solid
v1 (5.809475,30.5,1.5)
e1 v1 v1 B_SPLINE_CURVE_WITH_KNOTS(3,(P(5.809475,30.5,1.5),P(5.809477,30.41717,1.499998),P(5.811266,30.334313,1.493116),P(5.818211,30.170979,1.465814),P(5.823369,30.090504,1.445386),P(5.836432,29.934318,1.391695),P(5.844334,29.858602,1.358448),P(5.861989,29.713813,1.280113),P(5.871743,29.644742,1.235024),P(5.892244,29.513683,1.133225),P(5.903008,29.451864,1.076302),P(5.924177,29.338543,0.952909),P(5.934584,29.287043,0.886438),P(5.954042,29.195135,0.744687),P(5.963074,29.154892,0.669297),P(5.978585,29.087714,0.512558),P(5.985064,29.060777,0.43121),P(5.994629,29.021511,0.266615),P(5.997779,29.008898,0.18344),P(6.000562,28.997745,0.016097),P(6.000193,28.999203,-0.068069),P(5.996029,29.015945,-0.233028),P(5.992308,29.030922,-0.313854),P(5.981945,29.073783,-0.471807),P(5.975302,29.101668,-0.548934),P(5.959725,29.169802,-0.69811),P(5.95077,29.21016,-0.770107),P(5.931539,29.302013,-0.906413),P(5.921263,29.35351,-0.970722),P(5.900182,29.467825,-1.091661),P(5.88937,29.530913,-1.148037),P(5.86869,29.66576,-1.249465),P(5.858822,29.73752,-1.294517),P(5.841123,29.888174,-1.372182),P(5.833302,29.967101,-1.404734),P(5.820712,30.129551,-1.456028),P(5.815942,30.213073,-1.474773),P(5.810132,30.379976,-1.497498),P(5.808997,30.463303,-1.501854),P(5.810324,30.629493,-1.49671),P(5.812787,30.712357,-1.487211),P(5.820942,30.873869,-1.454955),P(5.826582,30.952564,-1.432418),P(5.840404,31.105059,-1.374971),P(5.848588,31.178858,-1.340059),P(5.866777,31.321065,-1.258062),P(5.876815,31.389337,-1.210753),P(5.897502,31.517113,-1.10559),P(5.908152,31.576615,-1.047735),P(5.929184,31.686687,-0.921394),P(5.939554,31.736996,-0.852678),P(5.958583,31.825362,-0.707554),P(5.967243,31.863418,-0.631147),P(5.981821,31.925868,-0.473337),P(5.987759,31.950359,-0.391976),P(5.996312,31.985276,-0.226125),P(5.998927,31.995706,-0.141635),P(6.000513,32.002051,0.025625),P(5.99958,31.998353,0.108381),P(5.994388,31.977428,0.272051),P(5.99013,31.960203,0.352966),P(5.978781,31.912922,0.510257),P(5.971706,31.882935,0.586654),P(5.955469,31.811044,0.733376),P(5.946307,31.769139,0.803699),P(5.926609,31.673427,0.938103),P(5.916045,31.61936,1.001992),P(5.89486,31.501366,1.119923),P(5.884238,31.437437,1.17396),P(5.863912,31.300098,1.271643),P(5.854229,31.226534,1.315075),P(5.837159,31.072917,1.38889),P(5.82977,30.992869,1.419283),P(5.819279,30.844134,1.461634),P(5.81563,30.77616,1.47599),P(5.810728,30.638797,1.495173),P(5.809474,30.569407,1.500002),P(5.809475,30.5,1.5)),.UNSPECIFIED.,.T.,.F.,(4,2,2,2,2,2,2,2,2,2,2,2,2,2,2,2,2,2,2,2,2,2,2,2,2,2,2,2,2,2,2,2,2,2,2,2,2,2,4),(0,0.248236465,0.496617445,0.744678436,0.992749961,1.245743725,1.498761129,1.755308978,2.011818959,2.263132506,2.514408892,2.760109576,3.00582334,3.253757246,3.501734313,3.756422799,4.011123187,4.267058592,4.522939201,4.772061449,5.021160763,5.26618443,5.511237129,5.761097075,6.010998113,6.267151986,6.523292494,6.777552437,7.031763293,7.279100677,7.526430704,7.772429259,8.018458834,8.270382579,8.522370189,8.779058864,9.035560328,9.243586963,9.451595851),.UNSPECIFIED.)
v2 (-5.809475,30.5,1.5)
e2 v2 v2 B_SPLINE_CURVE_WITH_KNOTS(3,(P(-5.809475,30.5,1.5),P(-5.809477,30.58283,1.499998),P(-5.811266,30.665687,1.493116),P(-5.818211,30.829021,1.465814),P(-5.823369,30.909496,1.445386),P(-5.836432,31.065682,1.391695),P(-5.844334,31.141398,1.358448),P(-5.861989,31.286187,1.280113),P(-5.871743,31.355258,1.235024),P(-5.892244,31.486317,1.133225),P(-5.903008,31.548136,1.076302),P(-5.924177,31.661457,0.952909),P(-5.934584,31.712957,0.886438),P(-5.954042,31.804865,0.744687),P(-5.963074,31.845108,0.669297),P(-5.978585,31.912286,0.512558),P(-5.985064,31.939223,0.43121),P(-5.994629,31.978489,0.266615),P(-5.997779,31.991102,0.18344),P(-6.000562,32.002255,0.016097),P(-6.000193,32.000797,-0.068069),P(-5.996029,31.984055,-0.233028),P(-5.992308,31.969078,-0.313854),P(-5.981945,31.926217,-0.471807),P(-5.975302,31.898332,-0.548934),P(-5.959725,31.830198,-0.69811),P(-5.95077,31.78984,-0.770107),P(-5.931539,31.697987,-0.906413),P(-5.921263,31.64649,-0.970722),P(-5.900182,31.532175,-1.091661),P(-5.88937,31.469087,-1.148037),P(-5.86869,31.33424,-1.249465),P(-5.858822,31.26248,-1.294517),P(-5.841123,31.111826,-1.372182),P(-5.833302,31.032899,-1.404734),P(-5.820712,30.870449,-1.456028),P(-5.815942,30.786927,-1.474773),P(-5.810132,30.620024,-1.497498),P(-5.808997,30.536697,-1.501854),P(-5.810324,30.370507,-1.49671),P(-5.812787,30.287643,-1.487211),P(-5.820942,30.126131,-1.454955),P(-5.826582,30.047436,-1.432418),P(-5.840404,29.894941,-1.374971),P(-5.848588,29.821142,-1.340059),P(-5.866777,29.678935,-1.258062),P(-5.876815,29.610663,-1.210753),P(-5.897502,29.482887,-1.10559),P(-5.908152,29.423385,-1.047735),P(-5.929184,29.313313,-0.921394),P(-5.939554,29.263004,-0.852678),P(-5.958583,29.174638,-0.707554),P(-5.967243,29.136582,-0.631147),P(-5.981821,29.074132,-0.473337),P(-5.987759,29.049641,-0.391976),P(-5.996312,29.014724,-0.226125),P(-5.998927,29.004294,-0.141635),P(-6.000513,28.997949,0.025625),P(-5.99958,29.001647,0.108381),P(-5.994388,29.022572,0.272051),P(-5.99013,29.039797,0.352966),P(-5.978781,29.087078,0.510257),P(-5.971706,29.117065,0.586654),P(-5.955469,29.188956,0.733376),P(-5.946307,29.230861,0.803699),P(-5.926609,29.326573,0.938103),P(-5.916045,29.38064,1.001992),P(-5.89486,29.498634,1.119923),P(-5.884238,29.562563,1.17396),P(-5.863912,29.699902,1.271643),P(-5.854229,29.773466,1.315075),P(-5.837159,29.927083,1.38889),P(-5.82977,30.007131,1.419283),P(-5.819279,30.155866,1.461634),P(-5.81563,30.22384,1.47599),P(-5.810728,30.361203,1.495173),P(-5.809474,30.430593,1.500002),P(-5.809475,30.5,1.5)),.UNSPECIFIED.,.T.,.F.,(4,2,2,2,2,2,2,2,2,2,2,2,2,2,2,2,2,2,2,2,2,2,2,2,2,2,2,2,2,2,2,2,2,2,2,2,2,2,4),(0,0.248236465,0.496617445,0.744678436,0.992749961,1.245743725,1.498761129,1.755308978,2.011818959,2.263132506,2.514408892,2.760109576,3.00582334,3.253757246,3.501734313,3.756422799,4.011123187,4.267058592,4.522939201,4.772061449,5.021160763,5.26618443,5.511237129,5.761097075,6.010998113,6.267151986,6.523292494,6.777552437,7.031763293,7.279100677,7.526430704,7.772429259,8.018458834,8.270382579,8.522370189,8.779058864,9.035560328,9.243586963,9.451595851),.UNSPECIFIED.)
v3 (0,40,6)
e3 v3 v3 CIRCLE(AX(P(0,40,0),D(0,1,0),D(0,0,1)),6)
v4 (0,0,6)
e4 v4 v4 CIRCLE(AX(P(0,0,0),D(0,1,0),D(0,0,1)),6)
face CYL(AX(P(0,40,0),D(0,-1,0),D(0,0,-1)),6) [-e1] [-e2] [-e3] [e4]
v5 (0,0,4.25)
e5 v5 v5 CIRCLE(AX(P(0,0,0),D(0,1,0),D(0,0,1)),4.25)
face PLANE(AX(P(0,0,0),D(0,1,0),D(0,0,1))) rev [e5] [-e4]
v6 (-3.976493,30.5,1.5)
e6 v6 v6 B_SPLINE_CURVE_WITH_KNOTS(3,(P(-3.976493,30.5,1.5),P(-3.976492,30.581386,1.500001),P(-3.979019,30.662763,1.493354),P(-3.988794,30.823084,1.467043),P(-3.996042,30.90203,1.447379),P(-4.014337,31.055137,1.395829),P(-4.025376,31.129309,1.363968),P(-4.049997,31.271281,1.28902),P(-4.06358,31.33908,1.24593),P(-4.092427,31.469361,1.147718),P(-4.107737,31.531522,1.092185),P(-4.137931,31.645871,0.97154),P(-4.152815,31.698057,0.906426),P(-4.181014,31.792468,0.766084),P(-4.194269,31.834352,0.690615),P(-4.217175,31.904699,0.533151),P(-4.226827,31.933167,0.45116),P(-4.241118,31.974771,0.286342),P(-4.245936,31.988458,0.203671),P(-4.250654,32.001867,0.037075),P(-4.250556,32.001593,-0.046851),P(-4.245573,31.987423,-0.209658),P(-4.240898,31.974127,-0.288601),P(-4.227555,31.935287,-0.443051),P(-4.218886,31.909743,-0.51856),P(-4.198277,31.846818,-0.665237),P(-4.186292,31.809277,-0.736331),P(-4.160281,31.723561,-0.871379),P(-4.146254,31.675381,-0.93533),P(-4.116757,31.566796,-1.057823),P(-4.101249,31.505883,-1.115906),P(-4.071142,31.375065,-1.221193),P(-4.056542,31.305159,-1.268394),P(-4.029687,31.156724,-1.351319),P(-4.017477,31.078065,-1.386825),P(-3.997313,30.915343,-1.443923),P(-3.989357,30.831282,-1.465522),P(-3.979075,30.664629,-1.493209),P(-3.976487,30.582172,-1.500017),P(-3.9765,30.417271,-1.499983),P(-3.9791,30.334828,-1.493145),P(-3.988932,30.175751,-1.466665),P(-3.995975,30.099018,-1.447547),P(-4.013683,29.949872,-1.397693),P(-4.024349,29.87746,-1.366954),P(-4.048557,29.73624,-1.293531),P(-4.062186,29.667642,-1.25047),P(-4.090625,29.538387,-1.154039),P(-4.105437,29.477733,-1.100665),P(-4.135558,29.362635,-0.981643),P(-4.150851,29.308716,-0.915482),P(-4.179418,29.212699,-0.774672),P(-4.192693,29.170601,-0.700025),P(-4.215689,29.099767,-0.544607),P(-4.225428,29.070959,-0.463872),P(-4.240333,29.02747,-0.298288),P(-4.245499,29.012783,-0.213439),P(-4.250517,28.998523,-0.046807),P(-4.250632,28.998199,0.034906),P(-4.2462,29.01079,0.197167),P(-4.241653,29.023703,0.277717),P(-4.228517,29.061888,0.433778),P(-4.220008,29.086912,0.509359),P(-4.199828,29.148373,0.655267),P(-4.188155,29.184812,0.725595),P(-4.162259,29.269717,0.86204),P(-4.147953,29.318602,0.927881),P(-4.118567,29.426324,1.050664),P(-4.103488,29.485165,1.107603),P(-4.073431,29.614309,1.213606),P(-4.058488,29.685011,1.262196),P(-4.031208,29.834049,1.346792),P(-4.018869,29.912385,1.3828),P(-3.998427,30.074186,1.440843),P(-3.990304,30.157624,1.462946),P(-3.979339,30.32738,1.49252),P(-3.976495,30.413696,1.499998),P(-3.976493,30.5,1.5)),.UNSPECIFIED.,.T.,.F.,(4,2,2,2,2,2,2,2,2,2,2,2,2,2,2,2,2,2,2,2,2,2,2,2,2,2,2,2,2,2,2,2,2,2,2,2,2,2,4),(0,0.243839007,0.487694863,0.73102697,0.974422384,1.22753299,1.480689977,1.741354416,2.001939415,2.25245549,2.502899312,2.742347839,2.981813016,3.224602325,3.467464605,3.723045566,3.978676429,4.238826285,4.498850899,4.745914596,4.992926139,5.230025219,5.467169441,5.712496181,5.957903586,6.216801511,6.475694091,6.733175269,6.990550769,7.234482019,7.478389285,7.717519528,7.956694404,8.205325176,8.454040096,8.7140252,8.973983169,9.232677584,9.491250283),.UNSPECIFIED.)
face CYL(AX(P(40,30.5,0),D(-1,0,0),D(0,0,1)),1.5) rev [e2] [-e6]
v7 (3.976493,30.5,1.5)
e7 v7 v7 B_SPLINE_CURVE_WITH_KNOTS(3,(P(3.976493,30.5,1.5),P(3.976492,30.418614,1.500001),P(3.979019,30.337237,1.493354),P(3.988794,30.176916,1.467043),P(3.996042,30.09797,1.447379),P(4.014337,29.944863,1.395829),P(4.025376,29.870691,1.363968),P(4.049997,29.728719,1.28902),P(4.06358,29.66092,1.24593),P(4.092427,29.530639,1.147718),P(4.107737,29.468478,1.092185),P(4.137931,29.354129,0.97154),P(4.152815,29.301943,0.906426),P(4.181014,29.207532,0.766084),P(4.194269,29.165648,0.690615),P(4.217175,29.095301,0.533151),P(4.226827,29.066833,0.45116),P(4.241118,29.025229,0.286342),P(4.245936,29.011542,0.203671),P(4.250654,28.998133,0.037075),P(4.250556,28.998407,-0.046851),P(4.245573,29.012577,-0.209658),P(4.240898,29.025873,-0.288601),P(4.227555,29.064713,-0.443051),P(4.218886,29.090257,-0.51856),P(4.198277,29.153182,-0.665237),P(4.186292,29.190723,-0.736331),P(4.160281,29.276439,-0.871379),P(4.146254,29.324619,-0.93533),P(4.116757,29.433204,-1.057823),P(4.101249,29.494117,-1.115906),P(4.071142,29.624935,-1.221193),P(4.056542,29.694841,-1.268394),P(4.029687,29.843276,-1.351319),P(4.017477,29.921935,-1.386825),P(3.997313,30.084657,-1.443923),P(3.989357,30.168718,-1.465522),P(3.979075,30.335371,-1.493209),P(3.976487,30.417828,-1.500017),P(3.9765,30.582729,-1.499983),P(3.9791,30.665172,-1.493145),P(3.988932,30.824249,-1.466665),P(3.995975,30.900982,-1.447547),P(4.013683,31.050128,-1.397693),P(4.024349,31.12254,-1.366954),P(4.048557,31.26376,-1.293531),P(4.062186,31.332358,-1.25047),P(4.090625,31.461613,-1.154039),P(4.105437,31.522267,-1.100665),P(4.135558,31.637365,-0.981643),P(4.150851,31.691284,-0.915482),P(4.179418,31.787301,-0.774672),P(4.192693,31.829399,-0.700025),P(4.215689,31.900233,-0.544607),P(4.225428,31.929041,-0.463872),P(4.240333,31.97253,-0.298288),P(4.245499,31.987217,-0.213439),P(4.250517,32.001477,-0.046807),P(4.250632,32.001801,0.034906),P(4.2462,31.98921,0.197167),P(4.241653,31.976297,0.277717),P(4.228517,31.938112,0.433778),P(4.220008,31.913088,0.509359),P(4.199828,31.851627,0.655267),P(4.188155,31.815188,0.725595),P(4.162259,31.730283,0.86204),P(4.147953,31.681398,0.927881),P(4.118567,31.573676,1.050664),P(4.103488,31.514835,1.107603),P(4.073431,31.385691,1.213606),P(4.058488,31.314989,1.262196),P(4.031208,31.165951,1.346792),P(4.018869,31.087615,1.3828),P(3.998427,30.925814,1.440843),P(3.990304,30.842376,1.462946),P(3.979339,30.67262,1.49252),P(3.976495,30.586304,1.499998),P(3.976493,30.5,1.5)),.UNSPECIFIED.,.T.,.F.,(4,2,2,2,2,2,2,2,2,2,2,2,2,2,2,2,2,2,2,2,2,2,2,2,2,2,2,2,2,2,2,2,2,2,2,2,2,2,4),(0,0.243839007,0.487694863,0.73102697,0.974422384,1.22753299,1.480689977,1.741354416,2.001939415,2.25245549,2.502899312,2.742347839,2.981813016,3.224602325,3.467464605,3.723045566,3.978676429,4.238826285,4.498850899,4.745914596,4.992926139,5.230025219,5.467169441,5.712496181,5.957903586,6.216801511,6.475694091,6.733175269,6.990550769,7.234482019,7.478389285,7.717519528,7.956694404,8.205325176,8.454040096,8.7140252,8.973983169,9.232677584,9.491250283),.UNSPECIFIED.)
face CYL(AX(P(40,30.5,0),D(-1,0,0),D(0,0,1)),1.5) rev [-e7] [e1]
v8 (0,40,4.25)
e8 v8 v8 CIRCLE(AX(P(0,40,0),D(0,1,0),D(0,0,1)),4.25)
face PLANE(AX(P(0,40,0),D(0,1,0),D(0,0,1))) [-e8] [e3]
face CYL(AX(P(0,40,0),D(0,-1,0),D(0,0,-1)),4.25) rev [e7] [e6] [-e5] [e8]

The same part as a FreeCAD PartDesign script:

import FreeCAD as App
import Part
import Sketcher

doc = App.newDocument("Part")
body = doc.addObject("PartDesign::Body", "Body")

sketch1 = body.newObject("Sketcher::SketchObject", "Sketch")
sketch1.AttachmentSupport = (doc.getObject("XZ_Plane"), [""])
sketch1.MapMode = "FlatFace"
sketch1.addGeometry(Part.Circle(App.Vector(0, 0, 0), App.Vector(0, 0, 1), 6), False)
sketch1.addGeometry(Part.Circle(App.Vector(0, 0, 0), App.Vector(0, 0, 1), 4.2), False)
sketch1.addConstraint(Sketcher.Constraint("Coincident", 0, 3, -1, 1))
sketch1.addConstraint(Sketcher.Constraint("Coincident", 1, 3, -1, 1))
sketch1.addConstraint(Sketcher.Constraint("Diameter", 0, 12.0))
sketch1.addConstraint(Sketcher.Constraint("Diameter", 1, 8.5))
pad1 = body.newObject("PartDesign::Pad", "Pad")
pad1.Profile = sketch1
pad1.Length = 40
pad1.Reversed = True

sketch2 = body.newObject("Sketcher::SketchObject", "Sketch001")
sketch2.AttachmentSupport = (doc.getObject("YZ_Plane"), [""])
sketch2.MapMode = "FlatFace"
sketch2.addGeometry(Part.Circle(App.Vector(30.5, 0, 0), App.Vector(0, 0, 1), 1.5), False)
sketch2.addConstraint(Sketcher.Constraint("PointOnObject", 0, 3, -1))
sketch2.addConstraint(Sketcher.Constraint("Diameter", 0, 3.0))
sketch2.addConstraint(Sketcher.Constraint("DistanceX", -1, 1, 0, 3, 30.5))
pocket1 = body.newObject("PartDesign::Pocket", "Pocket")
pocket1.Profile = sketch2
pocket1.Type = "ThroughAll"
pocket1.Midplane = True

doc.recompute()
